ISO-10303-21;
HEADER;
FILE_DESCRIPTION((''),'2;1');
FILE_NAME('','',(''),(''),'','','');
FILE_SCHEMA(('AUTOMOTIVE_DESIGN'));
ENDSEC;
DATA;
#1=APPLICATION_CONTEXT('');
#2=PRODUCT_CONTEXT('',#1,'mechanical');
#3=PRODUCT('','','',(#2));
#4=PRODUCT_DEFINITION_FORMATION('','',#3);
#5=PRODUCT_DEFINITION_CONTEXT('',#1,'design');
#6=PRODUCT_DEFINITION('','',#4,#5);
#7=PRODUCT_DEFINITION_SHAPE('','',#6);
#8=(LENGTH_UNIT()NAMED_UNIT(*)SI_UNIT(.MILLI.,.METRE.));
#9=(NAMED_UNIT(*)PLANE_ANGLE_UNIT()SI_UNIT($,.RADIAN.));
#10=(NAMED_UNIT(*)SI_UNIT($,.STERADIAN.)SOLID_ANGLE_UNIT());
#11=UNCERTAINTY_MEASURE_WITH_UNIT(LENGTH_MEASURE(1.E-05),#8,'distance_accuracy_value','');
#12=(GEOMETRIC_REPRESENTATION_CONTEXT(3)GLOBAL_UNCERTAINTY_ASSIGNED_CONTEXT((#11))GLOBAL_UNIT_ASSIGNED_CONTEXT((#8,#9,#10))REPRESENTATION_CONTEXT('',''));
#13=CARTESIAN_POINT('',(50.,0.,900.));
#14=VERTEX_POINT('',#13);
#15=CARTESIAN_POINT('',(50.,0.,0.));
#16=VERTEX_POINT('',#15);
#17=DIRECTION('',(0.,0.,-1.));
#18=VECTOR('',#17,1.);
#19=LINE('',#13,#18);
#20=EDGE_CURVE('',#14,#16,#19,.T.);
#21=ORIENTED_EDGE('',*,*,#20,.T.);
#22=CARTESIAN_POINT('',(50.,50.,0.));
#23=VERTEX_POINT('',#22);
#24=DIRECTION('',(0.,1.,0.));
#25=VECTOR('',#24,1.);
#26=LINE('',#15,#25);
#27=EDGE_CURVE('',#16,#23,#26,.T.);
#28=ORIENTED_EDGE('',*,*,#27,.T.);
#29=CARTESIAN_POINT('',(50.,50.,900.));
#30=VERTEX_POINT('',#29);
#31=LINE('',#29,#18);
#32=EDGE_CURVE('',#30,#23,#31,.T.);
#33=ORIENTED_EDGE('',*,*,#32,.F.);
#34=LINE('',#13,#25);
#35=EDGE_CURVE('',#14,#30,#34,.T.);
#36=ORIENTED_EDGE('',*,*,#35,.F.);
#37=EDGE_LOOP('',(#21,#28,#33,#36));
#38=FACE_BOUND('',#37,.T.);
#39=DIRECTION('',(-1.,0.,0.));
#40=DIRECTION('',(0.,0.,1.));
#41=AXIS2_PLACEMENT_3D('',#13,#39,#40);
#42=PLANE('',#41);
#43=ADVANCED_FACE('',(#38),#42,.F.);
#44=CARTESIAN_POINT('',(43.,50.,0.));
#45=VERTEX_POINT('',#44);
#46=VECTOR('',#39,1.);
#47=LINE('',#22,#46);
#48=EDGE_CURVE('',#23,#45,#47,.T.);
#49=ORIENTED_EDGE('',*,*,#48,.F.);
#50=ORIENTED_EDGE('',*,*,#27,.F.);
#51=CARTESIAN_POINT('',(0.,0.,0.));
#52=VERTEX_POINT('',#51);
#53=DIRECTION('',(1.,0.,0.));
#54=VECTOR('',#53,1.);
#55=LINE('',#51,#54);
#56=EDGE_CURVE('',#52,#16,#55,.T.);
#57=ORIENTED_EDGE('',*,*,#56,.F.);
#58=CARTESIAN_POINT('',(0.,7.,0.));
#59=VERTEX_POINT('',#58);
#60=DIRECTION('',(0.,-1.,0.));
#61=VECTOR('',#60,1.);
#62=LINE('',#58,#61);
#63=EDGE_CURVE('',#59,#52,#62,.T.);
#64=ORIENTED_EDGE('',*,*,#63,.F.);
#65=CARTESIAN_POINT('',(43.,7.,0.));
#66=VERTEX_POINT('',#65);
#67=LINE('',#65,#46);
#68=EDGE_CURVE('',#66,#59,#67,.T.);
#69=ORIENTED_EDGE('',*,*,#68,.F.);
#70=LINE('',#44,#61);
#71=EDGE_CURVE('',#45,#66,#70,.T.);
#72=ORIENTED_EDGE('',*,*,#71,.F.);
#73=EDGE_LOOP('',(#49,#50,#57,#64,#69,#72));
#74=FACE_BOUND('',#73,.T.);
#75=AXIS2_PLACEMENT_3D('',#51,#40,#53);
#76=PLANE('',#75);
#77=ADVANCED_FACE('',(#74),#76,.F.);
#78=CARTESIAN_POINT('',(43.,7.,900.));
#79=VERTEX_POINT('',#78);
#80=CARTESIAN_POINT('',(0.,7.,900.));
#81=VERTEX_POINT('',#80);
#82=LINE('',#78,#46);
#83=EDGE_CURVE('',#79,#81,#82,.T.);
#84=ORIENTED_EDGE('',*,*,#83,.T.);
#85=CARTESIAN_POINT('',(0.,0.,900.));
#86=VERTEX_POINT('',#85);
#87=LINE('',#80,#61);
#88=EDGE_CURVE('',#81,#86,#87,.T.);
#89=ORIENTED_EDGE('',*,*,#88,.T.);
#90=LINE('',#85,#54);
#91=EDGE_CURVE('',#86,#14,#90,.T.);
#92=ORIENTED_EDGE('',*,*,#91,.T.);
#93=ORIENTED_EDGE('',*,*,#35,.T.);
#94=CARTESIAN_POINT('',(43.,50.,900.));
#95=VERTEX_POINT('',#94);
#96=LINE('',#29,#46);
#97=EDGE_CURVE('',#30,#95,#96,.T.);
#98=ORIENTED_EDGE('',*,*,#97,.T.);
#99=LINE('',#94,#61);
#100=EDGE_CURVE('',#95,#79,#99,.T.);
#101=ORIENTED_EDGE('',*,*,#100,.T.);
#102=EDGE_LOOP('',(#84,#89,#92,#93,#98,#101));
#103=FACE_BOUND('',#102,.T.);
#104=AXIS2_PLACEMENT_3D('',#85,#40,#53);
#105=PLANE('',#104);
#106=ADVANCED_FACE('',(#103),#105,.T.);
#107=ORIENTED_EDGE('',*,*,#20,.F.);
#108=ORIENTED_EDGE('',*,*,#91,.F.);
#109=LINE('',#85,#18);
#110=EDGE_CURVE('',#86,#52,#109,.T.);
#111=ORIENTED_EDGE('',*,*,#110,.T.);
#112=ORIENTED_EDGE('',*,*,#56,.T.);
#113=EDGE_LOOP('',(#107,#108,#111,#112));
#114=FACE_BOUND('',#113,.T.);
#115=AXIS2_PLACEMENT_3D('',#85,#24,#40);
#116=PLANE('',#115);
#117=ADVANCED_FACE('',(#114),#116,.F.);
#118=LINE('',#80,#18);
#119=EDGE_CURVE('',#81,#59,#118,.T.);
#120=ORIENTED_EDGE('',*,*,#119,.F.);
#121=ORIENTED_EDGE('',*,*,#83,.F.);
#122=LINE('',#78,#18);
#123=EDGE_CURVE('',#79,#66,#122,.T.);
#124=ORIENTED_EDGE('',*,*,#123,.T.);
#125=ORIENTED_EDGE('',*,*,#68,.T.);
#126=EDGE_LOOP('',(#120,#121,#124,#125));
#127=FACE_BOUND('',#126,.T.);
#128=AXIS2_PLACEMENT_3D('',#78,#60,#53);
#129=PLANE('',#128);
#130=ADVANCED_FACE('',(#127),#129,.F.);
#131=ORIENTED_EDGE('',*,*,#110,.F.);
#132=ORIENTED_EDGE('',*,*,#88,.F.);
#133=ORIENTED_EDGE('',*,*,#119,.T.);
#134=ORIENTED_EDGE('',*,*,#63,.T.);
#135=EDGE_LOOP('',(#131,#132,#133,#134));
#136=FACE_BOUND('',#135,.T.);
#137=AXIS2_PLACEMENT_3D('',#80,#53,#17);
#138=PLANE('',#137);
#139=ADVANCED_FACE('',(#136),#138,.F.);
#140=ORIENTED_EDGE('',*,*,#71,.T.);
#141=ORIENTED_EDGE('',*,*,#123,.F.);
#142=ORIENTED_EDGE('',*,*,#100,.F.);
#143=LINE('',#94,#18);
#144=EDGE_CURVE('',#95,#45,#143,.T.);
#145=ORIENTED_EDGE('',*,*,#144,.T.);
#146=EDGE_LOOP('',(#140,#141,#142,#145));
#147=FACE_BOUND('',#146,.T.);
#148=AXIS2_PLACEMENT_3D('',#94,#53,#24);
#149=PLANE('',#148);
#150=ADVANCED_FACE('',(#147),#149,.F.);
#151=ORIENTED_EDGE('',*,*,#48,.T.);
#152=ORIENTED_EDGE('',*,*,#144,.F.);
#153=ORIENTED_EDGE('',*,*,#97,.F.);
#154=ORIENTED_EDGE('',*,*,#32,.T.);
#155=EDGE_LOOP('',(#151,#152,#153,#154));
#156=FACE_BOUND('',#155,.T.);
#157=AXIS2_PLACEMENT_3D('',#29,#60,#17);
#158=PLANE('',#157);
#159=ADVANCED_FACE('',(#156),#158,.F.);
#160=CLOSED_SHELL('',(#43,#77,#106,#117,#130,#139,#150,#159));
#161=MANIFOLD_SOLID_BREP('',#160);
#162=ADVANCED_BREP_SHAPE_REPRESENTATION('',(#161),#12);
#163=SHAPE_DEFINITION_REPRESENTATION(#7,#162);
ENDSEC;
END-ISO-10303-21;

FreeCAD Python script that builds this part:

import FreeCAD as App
import Part
import Sketcher

doc = App.newDocument("Part")
body = doc.addObject("PartDesign::Body", "Body")

sketch1 = body.newObject("Sketcher::SketchObject", "Sketch")
sketch1.AttachmentSupport = (doc.getObject("XY_Plane"), [""])
sketch1.MapMode = "FlatFace"
sketch1.addGeometry([
    Part.LineSegment(App.Vector(0, 0, 0), App.Vector(50, 0, 0)),
    Part.LineSegment(App.Vector(50, 0, 0), App.Vector(50, 50, 0)),
    Part.LineSegment(App.Vector(50, 50, 0), App.Vector(43, 50, 0)),
    Part.LineSegment(App.Vector(43, 50, 0), App.Vector(43, 7, 0)),
    Part.LineSegment(App.Vector(43, 7, 0), App.Vector(0, 7, 0)),
    Part.LineSegment(App.Vector(0, 7, 0), App.Vector(0, 0, 0)),
], False)
sketch1.addConstraint([
    Sketcher.Constraint("Coincident", 0, 2, 1, 1),
    Sketcher.Constraint("Coincident", 1, 2, 2, 1),
    Sketcher.Constraint("Coincident", 2, 2, 3, 1),
    Sketcher.Constraint("Coincident", 3, 2, 4, 1),
    Sketcher.Constraint("Coincident", 4, 2, 5, 1),
    Sketcher.Constraint("Coincident", 5, 2, 0, 1),
    Sketcher.Constraint("Horizontal", 0),
    Sketcher.Constraint("Vertical", 1),
    Sketcher.Constraint("Horizontal", 2),
    Sketcher.Constraint("Vertical", 3),
    Sketcher.Constraint("Horizontal", 4),
    Sketcher.Constraint("Vertical", 5),
    Sketcher.Constraint("Coincident", 5, 2, -1, 1),
    Sketcher.Constraint("Equal", 0, 1),
    Sketcher.Constraint("Equal", 4, 3),
    Sketcher.Constraint("DistanceX", 0, 1, 0, 2, 50.0),
    Sketcher.Constraint("DistanceX", 2, 2, 2, 1, 7.0),
])
pad1 = body.newObject("PartDesign::Pad", "Pad")
pad1.Profile = sketch1
pad1.Length = 900

doc.recompute()
